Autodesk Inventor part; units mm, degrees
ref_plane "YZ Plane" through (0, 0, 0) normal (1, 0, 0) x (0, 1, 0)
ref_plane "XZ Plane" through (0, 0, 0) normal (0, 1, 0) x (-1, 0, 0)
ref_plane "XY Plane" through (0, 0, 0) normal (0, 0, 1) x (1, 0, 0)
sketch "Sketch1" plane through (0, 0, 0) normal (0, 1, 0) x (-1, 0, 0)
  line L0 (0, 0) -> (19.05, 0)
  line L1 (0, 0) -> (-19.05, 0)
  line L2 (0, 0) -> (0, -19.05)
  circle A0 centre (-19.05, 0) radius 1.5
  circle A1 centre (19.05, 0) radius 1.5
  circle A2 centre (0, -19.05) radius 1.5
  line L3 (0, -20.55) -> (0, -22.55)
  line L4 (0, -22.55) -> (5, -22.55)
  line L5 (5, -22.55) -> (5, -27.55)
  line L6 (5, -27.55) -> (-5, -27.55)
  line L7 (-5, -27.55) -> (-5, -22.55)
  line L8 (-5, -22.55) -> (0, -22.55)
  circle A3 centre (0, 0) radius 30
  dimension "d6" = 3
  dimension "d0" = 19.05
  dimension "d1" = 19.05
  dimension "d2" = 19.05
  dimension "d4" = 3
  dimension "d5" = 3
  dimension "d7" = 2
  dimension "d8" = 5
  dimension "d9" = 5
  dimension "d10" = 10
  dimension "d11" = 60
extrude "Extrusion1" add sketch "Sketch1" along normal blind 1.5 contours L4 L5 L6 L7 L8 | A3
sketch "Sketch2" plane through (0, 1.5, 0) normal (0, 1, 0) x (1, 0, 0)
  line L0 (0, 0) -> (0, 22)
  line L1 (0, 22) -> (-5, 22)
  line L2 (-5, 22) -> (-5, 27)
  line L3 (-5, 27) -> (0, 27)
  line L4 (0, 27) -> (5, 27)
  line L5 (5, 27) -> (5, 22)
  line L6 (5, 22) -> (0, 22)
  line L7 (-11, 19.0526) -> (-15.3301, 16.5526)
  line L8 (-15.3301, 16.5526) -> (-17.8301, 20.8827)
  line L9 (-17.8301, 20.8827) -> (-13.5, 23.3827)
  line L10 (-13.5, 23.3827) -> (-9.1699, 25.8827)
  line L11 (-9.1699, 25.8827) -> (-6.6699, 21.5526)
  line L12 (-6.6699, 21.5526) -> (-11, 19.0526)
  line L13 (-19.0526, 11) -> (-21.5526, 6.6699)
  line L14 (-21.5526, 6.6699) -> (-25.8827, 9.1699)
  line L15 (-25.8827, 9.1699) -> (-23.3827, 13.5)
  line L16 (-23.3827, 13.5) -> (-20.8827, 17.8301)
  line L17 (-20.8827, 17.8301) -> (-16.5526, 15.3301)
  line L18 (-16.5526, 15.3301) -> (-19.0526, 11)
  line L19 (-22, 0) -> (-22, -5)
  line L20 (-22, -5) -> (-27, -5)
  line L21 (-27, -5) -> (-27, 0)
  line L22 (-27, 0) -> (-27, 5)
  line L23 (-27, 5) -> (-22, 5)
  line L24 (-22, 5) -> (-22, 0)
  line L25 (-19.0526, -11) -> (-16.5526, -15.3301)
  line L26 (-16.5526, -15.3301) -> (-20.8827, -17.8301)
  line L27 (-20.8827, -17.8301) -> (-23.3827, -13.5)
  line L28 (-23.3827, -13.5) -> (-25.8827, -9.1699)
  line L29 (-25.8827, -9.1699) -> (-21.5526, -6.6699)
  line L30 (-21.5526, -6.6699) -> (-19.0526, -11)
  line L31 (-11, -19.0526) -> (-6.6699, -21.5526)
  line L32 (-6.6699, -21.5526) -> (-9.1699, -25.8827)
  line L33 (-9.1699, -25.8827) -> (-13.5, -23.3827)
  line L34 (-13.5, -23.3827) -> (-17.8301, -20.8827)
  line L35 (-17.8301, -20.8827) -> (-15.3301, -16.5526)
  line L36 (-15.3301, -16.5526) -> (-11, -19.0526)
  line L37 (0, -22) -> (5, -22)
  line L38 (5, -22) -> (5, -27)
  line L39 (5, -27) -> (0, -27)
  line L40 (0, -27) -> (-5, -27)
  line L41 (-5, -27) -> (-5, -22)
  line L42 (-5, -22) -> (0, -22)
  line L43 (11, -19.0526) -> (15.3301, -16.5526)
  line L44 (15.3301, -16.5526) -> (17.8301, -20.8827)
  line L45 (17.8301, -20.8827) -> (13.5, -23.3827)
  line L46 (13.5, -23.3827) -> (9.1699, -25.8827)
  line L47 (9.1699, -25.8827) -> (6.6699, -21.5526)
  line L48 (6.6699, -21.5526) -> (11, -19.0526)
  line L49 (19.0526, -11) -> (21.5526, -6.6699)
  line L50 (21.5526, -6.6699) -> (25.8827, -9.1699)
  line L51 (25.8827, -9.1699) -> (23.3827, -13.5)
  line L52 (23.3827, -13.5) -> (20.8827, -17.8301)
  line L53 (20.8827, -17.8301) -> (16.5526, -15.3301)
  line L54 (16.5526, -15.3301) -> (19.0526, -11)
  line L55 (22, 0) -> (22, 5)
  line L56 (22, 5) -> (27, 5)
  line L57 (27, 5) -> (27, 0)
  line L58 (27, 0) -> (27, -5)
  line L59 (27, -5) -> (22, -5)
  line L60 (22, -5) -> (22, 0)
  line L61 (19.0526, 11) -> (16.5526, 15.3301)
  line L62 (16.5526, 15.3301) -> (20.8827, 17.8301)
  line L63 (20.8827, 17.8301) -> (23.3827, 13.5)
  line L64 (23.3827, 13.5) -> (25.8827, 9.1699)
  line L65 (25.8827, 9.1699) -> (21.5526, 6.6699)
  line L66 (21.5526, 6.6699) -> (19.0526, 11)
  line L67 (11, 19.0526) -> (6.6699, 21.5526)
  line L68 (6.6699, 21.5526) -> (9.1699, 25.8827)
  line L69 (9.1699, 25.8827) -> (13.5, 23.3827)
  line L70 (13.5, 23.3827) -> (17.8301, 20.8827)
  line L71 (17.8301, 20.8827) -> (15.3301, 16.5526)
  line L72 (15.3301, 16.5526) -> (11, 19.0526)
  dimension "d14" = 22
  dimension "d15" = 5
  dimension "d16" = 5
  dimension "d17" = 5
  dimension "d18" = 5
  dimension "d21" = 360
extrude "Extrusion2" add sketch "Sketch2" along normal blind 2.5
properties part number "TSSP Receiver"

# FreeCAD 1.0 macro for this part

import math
import FreeCAD as App
import Part
import Sketcher
Q = App.Units.Quantity


def add_polygon(sketch, points):
    """Adds a closed chain of lines whose ends are joined by coincident constraints."""
    first, n = sketch.GeometryCount, len(points)
    for a, b in zip(points, points[1:] + points[:1]):
        sketch.addGeometry(Part.LineSegment(App.Vector(*a, 0), App.Vector(*b, 0)), False)
    for i in range(n):
        sketch.addConstraint(Sketcher.Constraint("Coincident", first + i, 2, first + (i + 1) % n, 1))

doc = App.newDocument("Part")
body = doc.addObject("PartDesign::Body", "Body")

# Sketch on XZ plane
sketch1 = doc.addObject("Sketcher::SketchObject", "Sketch")
body.addObject(sketch1)
sketch1.AttachmentSupport = (doc.XZ_Plane, [""])
sketch1.MapMode = "FlatFace"
sketch1.addGeometry([
    Part.Circle(App.Vector(0, 0, 0), App.Vector(0, 0, 1), 30),  # 0
    Part.Circle(App.Vector(-19.05, 0, 0), App.Vector(0, 0, 1), 1.5),  # 1
    Part.ArcOfCircle(Part.Circle(App.Vector(0, -19.05, 0), App.Vector(0, 0, 1), 1.5), math.radians(-90), math.radians(90)),  # 2
    Part.ArcOfCircle(Part.Circle(App.Vector(0, -19.05, 0), App.Vector(0, 0, 1), 1.5), math.radians(90), math.radians(270)),  # 3
    Part.Circle(App.Vector(19.05, 0, 0), App.Vector(0, 0, 1), 1.5),  # 4
], False)
sketch1.addConstraint([
    Sketcher.Constraint("Tangent", 2, 1, 3, 2),
    Sketcher.Constraint("Coincident", 3, 1, 2, 2),
    Sketcher.Constraint("Coincident", 0, 3, -1, 1),
    Sketcher.Constraint("Equal", 1, 2),
    Sketcher.Constraint("Equal", 3, 4),
    Sketcher.Constraint("Symmetric", 1, 3, 4, 3, -1, 1),
    Sketcher.Constraint("PointOnObject", 1, 3, -1),
    Sketcher.Constraint("PointOnObject", 2, 3, -2),
    Sketcher.Constraint("PointOnObject", 2, 1, -2),
    Sketcher.Constraint("PointOnObject", 3, 1, -2),
    Sketcher.Constraint("Diameter", 0, 60.0),
    Sketcher.Constraint("Diameter", 1, 3.0),
    Sketcher.Constraint("DistanceX", 1, 3, -1, 1, 19.05),
    Sketcher.Constraint("DistanceY", 2, 3, -1, 1, 19.05),
])
pad1 = doc.addObject("PartDesign::Pad", "Pad")
body.addObject(pad1)
pad1.Profile = sketch1
pad1.Length = 1.5
pad1.Reversed = True

# Sketch on XZ plane
sketch2 = doc.addObject("Sketcher::SketchObject", "Sketch001")
body.addObject(sketch2)
sketch2.AttachmentSupport = (doc.XZ_Plane, [""])
sketch2.MapMode = "FlatFace"
sketch2.AttachmentOffset = App.Placement(App.Vector(0, 0, -1.5), App.Rotation())
add_polygon(sketch2, [(-5, -22), (5, -22), (5, -27), (-5, -27)])  # lines 0-3
add_polygon(sketch2, [(-15.3301, -16.5526), (-6.6699, -21.5526), (-9.1699, -25.8827), (-17.8301, -20.8827)])  # lines 4-7
add_polygon(sketch2, [(-21.5526, -6.6699), (-16.5526, -15.3301), (-20.8827, -17.8301), (-25.8827, -9.1699)])  # lines 8-11
add_polygon(sketch2, [(-22, 5), (-22, -5), (-27, -5), (-27, 5)])  # lines 12-15
add_polygon(sketch2, [(-16.5526, 15.3301), (-21.5526, 6.6699), (-25.8827, 9.1699), (-20.8827, 17.8301)])  # lines 16-19
add_polygon(sketch2, [(-6.6699, 21.5526), (-15.3301, 16.5526), (-17.8301, 20.8827), (-9.1699, 25.8827)])  # lines 20-23
add_polygon(sketch2, [(5, 22), (-5, 22), (-5, 27), (5, 27)])  # lines 24-27
add_polygon(sketch2, [(15.3301, 16.5526), (6.6699, 21.5526), (9.1699, 25.8827), (17.8301, 20.8827)])  # lines 28-31
add_polygon(sketch2, [(21.5526, 6.6699), (16.5526, 15.3301), (20.8827, 17.8301), (25.8827, 9.1699)])  # lines 32-35
add_polygon(sketch2, [(22, -5), (22, 5), (27, 5), (27, -5)])  # lines 36-39
add_polygon(sketch2, [(16.5526, -15.3301), (21.5526, -6.6699), (25.8827, -9.1699), (20.8827, -17.8301)])  # lines 40-43
add_polygon(sketch2, [(6.6699, -21.5526), (15.3301, -16.5526), (17.8301, -20.8827), (9.1699, -25.8827)])  # lines 44-47
sketch2.addConstraint([
    Sketcher.Constraint("Horizontal", 0),
    Sketcher.Constraint("Vertical", 1),
    Sketcher.Constraint("Horizontal", 2),
    Sketcher.Constraint("Vertical", 3),
    Sketcher.Constraint("Vertical", 12),
    Sketcher.Constraint("Horizontal", 13),
    Sketcher.Constraint("Vertical", 14),
    Sketcher.Constraint("Horizontal", 15),
    Sketcher.Constraint("Horizontal", 24),
    Sketcher.Constraint("Vertical", 25),
    Sketcher.Constraint("Horizontal", 26),
    Sketcher.Constraint("Vertical", 27),
    Sketcher.Constraint("Vertical", 36),
    Sketcher.Constraint("Horizontal", 37),
    Sketcher.Constraint("Vertical", 38),
    Sketcher.Constraint("Horizontal", 39),
    Sketcher.Constraint("Symmetric", 0, 2, 24, 2, -1, 1),
    Sketcher.Constraint("Symmetric", 2, 2, 26, 2, -1, 1),
    Sketcher.Constraint("Symmetric", 4, 2, 28, 2, -1, 1),
    Sketcher.Constraint("Symmetric", 5, 2, 29, 2, -1, 1),
    Sketcher.Constraint("Symmetric", 6, 2, 30, 2, -1, 1),
    Sketcher.Constraint("Symmetric", 7, 2, 31, 2, -1, 1),
    Sketcher.Constraint("Symmetric", 8, 2, 32, 2, -1, 1),
    Sketcher.Constraint("Symmetric", 9, 2, 33, 2, -1, 1),
    Sketcher.Constraint("Symmetric", 10, 2, 34, 2, -1, 1),
    Sketcher.Constraint("Symmetric", 11, 2, 35, 2, -1, 1),
    Sketcher.Constraint("Symmetric", 12, 2, 36, 2, -1, 1),
    Sketcher.Constraint("Symmetric", 14, 2, 38, 2, -1, 1),
    Sketcher.Constraint("Symmetric", 16, 2, 40, 2, -1, 1),
    Sketcher.Constraint("Symmetric", 17, 2, 41, 2, -1, 1),
    Sketcher.Constraint("Symmetric", 18, 2, 42, 2, -1, 1),
    Sketcher.Constraint("Symmetric", 19, 2, 43, 2, -1, 1),
    Sketcher.Constraint("Symmetric", 20, 2, 44, 2, -1, 1),
    Sketcher.Constraint("Symmetric", 21, 2, 45, 2, -1, 1),
    Sketcher.Constraint("Symmetric", 22, 2, 46, 2, -1, 1),
    Sketcher.Constraint("Symmetric", 23, 2, 47, 2, -1, 1),
    Sketcher.Constraint("Symmetric", 23, 2, 28, 2, -2),
    Sketcher.Constraint("Symmetric", 22, 2, 29, 2, -2),
    Sketcher.Constraint("Symmetric", 21, 2, 30, 2, -2),
    Sketcher.Constraint("Symmetric", 20, 2, 31, 2, -2),
    Sketcher.Constraint("Symmetric", 19, 2, 32, 2, -2),
    Sketcher.Constraint("Symmetric", 18, 2, 33, 2, -2),
    Sketcher.Constraint("Symmetric", 17, 2, 34, 2, -2),
    Sketcher.Constraint("Symmetric", 16, 2, 35, 2, -2),
    Sketcher.Constraint("Perpendicular", 4, 5),
    Sketcher.Constraint("Perpendicular", 5, 6),
    Sketcher.Constraint("Perpendicular", 6, 7),
    Sketcher.Constraint("Perpendicular", 8, 9),
    Sketcher.Constraint("Perpendicular", 9, 10),
    Sketcher.Constraint("Perpendicular", 10, 11),
    Sketcher.Constraint("Parallel", 7, 16),
    Sketcher.Constraint("Horizontal", 15, 2, 36, 2),
    Sketcher.Constraint("Vertical", 3, 2, 24, 2),
    Sketcher.Constraint("Equal", 39, 1),
    Sketcher.Constraint("Equal", 26, 12),
    Sketcher.Constraint("Equal", 6, 8),
    Sketcher.Constraint("Equal", 7, 9),
    Sketcher.Constraint("DistanceX", 13, 2, 13, 1, 5.0),
    Sketcher.Constraint("Distance", 5, 5.0),
    Sketcher.Constraint("DistanceX", -1, 1, 0, 2, 5.0),
    Sketcher.Constraint("DistanceY", 0, 2, -1, 1, 22.0),
    Sketcher.Constraint("DistanceX", 12, 2, -1, 1, 22.0),
    Sketcher.Constraint("DistanceY", 5, 2, 6, 2, 5.0),
    Sketcher.Constraint("Angle", 4, Q("-30.0002 deg")),
    Sketcher.Constraint("DistanceX", 4, 2, -1, 1, 6.67),
    Sketcher.Constraint("DistanceY", 8, 2, -1, 1, 15.33),
    Sketcher.Constraint("DistanceY", 4, 2, -1, 1, 21.5526),
    Sketcher.Constraint("DistanceX", 8, 2, -1, 1, 16.5526),
])
pad2 = doc.addObject("PartDesign::Pad", "Pad001")
body.addObject(pad2)
pad2.Profile = sketch2
pad2.Length = 2.5
pad2.Reversed = True

doc.recompute()
